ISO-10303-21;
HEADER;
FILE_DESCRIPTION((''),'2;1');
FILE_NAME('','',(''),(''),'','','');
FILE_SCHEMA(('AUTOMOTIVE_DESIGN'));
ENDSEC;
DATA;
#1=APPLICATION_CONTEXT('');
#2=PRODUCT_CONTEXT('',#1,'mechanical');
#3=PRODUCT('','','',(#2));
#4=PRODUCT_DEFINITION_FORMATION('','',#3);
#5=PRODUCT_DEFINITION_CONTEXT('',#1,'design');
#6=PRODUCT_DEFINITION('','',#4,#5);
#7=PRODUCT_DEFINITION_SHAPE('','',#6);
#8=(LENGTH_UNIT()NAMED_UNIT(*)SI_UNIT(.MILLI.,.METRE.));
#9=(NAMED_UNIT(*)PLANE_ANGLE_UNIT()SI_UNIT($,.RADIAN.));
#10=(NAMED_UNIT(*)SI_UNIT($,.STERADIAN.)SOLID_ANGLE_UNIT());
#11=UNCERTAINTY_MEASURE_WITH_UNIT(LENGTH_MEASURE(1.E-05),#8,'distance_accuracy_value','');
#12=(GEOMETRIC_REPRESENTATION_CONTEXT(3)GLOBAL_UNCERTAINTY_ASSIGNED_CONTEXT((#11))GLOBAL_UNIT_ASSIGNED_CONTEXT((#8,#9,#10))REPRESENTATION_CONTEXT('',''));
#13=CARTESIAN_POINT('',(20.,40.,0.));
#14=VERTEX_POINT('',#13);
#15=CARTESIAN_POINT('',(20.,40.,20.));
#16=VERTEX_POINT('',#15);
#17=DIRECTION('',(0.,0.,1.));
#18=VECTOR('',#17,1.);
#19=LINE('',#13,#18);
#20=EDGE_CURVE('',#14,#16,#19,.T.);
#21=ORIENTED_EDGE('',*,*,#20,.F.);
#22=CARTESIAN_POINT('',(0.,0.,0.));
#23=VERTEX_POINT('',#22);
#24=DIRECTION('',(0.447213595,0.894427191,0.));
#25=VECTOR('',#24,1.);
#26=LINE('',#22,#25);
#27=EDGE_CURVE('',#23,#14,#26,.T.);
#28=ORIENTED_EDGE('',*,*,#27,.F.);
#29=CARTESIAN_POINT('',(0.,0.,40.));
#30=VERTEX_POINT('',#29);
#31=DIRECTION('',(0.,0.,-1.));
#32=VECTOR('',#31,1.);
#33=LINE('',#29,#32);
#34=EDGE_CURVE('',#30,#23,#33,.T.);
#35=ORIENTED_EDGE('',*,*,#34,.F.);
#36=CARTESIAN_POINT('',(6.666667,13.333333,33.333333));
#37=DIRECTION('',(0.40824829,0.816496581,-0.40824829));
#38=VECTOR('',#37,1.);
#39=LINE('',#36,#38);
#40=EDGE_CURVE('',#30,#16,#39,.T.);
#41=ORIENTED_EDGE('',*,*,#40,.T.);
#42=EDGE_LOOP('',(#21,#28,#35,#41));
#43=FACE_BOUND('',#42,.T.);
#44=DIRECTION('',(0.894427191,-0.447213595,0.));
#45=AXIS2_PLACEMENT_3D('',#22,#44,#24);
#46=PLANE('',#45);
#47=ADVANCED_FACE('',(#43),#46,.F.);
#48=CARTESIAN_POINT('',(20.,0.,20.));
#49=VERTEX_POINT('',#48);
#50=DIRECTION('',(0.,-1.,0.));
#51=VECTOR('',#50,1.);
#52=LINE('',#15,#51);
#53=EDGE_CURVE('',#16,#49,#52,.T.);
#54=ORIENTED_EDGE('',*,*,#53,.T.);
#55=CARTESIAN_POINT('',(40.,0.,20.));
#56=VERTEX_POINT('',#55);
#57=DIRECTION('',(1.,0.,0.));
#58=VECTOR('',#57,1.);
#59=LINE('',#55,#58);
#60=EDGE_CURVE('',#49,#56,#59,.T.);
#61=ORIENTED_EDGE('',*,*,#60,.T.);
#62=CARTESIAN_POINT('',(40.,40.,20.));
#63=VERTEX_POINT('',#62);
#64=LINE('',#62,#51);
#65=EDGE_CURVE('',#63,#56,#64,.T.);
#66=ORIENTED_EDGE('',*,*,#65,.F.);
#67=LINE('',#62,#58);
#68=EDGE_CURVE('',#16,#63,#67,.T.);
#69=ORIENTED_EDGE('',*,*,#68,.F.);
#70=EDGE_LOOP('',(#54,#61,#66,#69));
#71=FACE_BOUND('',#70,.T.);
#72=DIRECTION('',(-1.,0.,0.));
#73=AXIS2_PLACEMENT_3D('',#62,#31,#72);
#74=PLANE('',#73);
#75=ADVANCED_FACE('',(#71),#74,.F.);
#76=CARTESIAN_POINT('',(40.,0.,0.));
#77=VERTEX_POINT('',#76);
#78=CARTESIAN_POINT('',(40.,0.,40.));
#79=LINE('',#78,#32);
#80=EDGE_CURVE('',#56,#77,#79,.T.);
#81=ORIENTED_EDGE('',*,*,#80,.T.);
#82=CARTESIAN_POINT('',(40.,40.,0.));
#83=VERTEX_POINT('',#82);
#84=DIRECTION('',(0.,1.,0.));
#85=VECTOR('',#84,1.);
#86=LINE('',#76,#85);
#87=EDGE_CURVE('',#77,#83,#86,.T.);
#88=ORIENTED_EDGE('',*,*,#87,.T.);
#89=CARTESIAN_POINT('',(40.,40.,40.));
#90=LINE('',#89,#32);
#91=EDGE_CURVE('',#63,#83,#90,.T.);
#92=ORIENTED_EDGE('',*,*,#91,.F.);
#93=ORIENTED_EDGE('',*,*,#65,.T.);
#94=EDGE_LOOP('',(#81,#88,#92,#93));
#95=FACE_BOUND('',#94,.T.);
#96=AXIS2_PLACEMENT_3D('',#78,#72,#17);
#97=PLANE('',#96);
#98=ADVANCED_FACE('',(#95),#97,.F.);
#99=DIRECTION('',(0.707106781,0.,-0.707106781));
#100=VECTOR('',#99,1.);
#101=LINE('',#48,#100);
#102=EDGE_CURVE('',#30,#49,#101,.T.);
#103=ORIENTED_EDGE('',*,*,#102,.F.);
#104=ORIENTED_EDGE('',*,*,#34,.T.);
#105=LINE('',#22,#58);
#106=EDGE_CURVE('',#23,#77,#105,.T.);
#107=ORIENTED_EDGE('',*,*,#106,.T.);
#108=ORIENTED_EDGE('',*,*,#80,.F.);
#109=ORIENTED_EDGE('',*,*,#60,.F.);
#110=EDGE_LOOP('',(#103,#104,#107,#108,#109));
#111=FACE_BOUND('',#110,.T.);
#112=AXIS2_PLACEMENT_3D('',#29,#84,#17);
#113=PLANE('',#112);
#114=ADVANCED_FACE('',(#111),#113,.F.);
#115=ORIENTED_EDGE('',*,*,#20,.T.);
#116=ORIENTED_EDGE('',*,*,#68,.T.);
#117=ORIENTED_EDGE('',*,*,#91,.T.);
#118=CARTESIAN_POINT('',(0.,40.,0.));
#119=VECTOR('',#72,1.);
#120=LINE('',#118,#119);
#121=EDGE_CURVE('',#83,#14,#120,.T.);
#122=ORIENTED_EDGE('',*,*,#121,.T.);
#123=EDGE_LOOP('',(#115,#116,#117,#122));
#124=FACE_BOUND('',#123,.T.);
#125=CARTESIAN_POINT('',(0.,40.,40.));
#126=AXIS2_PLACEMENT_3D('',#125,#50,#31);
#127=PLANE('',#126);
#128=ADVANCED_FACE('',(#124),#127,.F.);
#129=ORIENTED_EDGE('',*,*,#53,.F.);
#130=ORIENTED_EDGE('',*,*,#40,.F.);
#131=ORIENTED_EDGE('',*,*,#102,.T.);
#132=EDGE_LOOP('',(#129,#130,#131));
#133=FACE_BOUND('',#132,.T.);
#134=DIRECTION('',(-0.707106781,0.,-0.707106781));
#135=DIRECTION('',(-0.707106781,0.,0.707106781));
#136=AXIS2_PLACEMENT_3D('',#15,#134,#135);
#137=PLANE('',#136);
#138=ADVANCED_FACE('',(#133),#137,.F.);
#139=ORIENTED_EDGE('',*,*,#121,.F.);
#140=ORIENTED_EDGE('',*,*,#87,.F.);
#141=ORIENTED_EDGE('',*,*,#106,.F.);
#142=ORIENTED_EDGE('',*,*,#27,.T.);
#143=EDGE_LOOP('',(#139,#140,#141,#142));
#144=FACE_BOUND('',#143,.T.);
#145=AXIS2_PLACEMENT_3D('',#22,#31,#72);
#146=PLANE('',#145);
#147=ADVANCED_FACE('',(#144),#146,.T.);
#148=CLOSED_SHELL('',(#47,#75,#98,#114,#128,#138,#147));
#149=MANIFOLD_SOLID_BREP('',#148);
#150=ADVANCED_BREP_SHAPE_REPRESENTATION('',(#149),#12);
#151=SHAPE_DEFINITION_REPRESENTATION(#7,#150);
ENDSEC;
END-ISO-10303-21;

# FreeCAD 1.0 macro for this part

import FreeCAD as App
import Part
import Sketcher
from FreeCAD import Vector
Q = App.Units.Quantity


def add_polygon(sketch, points):
    """Adds a closed chain of lines whose ends are joined by coincident constraints."""
    first, n = sketch.GeometryCount, len(points)
    for a, b in zip(points, points[1:] + points[:1]):
        sketch.addGeometry(Part.LineSegment(App.Vector(*a, 0), App.Vector(*b, 0)), False)
    for i in range(n):
        sketch.addConstraint(Sketcher.Constraint("Coincident", first + i, 2, first + (i + 1) % n, 1))

doc = App.newDocument("Part")
body = doc.addObject("PartDesign::Body", "Body")

# Sketch on XY plane
sketch1 = doc.addObject("Sketcher::SketchObject", "Sketch")
body.addObject(sketch1)
sketch1.AttachmentSupport = (doc.XY_Plane, [""])
sketch1.MapMode = "FlatFace"
add_polygon(sketch1, [(0, 40), (0, 0), (40, 0), (40, 40)])  # lines 0-3
sketch1.addConstraint([
    Sketcher.Constraint("Vertical", 0),
    Sketcher.Constraint("Horizontal", 1),
    Sketcher.Constraint("Vertical", 2),
    Sketcher.Constraint("Horizontal", 3),
    Sketcher.Constraint("Coincident", 0, 2, -1, 1),
    Sketcher.Constraint("Equal", 3, 0),
    Sketcher.Constraint("DistanceX", 1, 1, 1, 2, Q("40 mm")),
])
pad1 = doc.addObject("PartDesign::Pad", "Pad")
body.addObject(pad1)
pad1.Profile = sketch1
pad1.Length = 40

# Sketch on XY plane
sketch2 = doc.addObject("Sketcher::SketchObject", "Sketch001")
body.addObject(sketch2)
sketch2.AttachmentSupport = (doc.XY_Plane, [""])
sketch2.MapMode = "FlatFace"
sketch2.AttachmentOffset = App.Placement(Vector(0, 0, 40), App.Rotation())
add_polygon(sketch2, [(0, 0), (20, 40), (0, 40)])  # lines 0-2
sketch2.addConstraint([
    Sketcher.Constraint("Horizontal", 1),
    Sketcher.Constraint("Vertical", 2),
    Sketcher.Constraint("Coincident", 2, 2, -1, 1),
    Sketcher.Constraint("DistanceX", 1, 2, 1, 1, Q("20 mm")),
    Sketcher.Constraint("DistanceY", 2, 2, 2, 1, Q("40 mm")),
])
pocket1 = doc.addObject("PartDesign::Pocket", "Pocket")
body.addObject(pocket1)
pocket1.Profile = sketch2
pocket1.Length = 40

# Sketch on XZ plane
sketch3 = doc.addObject("Sketcher::SketchObject", "Sketch002")
body.addObject(sketch3)
sketch3.AttachmentSupport = (doc.XZ_Plane, [""])
sketch3.MapMode = "FlatFace"
add_polygon(sketch3, [(20, 20), (40, 20), (40, 40), (0, 40)])  # lines 0-3
sketch3.addConstraint([
    Sketcher.Constraint("Horizontal", 0),
    Sketcher.Constraint("Vertical", 1),
    Sketcher.Constraint("Horizontal", 2),
    Sketcher.Constraint("PointOnObject", 2, 2, -2),
    Sketcher.Constraint("Equal", 0, 1),
    Sketcher.Constraint("DistanceX", 0, 1, 0, 2, Q("20 mm")),
    Sketcher.Constraint("DistanceX", 2, 2, 2, 1, Q("40 mm")),
    Sketcher.Constraint("DistanceY", -1, 1, 0, 2, Q("20 mm")),
])
pocket2 = doc.addObject("PartDesign::Pocket", "Pocket001")
body.addObject(pocket2)
pocket2.Profile = sketch3
pocket2.Length = 40

doc.recompute()
